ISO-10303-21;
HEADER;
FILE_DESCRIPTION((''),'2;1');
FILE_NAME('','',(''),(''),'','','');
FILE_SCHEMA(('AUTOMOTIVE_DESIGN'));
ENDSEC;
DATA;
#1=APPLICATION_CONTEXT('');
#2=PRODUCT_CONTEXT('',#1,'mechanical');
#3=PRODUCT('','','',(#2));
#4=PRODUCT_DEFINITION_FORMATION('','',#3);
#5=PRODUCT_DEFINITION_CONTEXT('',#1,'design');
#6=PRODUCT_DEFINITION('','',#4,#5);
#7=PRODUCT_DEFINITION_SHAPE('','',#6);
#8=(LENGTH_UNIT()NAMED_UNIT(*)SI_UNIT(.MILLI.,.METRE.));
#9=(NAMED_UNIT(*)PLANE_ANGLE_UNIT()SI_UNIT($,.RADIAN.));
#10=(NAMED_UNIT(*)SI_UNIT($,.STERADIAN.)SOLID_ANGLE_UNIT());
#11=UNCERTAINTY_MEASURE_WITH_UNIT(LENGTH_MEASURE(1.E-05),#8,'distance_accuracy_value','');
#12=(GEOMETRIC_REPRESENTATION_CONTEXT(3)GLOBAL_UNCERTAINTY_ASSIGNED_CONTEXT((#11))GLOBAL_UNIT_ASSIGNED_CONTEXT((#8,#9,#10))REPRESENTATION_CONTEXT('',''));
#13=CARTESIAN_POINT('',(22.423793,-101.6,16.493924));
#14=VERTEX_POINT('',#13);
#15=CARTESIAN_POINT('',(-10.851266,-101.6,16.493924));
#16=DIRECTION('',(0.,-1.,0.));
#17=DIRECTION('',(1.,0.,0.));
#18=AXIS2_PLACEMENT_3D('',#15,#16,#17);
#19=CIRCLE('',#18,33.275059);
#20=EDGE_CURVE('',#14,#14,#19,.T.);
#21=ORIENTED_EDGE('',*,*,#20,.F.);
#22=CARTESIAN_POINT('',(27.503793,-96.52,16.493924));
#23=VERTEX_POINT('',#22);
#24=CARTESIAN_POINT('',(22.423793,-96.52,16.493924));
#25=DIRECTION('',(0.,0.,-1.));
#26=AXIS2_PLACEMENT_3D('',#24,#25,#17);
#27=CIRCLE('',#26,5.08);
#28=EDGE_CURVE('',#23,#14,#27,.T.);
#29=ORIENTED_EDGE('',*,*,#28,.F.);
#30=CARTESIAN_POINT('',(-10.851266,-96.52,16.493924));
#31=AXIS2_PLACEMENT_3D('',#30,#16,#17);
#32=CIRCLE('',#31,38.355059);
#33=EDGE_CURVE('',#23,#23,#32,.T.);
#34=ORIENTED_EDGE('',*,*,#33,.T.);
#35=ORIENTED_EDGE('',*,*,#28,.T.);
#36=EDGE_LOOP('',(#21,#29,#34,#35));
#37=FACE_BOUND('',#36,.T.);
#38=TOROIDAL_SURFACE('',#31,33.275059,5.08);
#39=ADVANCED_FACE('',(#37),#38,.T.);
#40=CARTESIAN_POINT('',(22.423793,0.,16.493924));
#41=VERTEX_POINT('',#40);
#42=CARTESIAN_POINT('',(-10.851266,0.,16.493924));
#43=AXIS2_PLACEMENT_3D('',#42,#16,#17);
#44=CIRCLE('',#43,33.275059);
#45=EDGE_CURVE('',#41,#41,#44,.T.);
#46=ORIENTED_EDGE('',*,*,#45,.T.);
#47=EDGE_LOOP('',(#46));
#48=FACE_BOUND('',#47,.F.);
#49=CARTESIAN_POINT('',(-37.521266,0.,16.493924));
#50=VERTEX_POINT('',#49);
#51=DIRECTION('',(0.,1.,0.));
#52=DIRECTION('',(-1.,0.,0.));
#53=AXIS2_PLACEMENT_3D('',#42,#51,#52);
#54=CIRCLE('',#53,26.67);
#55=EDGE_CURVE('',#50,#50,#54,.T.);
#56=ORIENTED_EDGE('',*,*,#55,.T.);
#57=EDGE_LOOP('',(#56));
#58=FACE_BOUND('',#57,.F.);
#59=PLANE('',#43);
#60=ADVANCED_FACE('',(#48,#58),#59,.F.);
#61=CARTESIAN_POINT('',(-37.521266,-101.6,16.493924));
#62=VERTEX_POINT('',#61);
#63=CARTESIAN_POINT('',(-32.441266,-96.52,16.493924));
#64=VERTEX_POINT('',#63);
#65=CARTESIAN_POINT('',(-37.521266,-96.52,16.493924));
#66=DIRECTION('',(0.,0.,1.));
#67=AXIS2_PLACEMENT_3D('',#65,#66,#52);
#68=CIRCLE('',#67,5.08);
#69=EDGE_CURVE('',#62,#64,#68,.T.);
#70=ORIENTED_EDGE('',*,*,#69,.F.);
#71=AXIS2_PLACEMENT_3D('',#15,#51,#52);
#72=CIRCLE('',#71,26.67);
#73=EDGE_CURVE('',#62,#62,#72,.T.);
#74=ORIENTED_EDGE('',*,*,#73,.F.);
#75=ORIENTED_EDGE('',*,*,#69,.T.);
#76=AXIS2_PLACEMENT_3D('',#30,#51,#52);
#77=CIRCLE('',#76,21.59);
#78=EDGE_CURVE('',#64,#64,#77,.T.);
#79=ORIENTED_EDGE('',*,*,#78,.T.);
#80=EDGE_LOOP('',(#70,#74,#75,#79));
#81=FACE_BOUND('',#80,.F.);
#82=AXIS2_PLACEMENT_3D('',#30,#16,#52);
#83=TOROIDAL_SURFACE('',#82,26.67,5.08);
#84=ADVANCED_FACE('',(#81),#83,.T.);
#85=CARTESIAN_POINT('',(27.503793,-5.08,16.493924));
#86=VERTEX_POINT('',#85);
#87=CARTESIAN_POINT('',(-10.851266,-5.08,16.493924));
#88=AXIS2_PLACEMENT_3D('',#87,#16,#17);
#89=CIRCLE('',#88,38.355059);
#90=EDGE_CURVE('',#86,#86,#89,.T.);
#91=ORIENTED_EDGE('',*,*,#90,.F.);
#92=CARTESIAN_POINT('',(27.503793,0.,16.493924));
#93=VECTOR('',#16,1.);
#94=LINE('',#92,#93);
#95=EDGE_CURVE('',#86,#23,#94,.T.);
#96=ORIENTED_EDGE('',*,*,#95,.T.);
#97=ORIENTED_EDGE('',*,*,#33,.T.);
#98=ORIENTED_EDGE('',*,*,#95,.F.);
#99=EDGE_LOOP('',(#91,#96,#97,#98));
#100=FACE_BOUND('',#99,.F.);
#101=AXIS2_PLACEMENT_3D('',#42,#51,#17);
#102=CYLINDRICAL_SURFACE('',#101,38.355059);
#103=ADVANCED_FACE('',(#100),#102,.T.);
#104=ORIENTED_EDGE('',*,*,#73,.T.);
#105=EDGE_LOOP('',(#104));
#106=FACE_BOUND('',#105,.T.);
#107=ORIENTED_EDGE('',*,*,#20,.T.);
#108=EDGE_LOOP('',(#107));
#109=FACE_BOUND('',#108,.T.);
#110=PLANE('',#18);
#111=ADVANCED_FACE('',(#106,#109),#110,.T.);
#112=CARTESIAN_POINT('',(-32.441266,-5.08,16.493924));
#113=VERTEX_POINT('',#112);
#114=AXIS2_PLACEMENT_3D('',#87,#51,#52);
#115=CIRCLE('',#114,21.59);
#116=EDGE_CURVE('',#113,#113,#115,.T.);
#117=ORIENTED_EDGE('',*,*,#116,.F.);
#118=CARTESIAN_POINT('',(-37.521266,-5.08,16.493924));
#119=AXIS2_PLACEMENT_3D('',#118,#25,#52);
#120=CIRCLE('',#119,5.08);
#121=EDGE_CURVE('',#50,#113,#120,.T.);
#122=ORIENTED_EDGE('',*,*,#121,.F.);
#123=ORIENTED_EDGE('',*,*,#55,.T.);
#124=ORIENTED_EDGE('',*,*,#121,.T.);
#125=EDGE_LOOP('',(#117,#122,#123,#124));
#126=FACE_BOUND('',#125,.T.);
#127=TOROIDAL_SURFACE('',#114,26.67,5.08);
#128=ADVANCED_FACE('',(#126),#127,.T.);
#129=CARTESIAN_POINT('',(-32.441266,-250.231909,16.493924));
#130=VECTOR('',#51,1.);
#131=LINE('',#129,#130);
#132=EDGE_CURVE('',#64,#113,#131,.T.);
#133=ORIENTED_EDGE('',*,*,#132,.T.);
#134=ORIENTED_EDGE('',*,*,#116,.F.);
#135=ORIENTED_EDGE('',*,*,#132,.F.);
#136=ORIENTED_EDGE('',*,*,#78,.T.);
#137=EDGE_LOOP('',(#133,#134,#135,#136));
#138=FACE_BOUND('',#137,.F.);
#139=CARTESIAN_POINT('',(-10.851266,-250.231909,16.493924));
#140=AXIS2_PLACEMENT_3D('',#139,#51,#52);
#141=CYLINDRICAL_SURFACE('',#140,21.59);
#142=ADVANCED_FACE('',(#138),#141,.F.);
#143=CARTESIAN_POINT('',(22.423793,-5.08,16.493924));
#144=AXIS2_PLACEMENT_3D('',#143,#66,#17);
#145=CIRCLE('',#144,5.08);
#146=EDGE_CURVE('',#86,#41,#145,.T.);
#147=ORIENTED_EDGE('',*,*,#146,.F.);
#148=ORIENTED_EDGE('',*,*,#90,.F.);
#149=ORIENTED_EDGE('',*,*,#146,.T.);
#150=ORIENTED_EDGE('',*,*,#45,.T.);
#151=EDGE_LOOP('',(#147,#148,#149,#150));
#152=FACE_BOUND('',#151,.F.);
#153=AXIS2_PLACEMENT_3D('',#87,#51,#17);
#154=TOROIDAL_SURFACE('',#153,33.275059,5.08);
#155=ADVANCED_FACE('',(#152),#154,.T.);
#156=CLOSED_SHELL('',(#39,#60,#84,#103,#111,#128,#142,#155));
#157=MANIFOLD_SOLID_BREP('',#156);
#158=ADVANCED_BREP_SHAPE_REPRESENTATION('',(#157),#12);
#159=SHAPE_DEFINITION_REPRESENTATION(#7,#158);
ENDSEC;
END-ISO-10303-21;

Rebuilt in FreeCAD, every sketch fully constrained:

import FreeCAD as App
import Part
import Sketcher

V = App.Vector
Q = App.Units.Quantity


def edges_at(feature, points):
    """Names of the edges that pass closest to the given points."""
    edges = feature.Shape.Edges
    near = lambda p: min(range(len(edges)), key=lambda i: edges[i].distToShape(Part.Vertex(*p))[0])
    return sorted({f"Edge{near(p) + 1}" for p in points})

doc = App.newDocument("Part")
body = doc.addObject("PartDesign::Body", "Body")

# Sketch on XZ plane
sketch1 = body.newObject("Sketcher::SketchObject", "Sketch")
sketch1.AttachmentSupport = (doc.getObject("XZ_Plane"), [""])
sketch1.MapMode = "FlatFace"
sketch1.addGeometry(Part.Circle(V(-11, 16, 0), V(0, 0, 1), 38), False)
sketch1.addConstraint(Sketcher.Constraint("Diameter", 0, Q("76.710118 mm")))
sketch1.addConstraint(Sketcher.Constraint("DistanceX", 0, 3, -1, 1, Q("10.851266 mm")))
sketch1.addConstraint(Sketcher.Constraint("DistanceY", -1, 1, 0, 3, Q("16.493924 mm")))
pad1 = body.newObject("PartDesign::Pad", "Pad")
pad1.Profile = sketch1
pad1.Length = Q("4 in")

# Sketch on XZ plane
sketch2 = body.newObject("Sketcher::SketchObject", "Sketch001")
sketch2.AttachmentSupport = (doc.getObject("XZ_Plane"), [""])
sketch2.MapMode = "FlatFace"
sketch2.AttachmentOffset = App.Placement(V(0, 0, 4 * 25.4), App.Rotation())
sketch2.addGeometry(Part.Circle(V(-11, 16, 0), V(0, 0, 1), 22), False)
sketch2.addConstraint(Sketcher.Constraint("Diameter", 0, Q("1.7 in")))
sketch2.addConstraint(Sketcher.Constraint("DistanceX", 0, 3, -1, 1, Q("10.851266 mm")))
sketch2.addConstraint(Sketcher.Constraint("DistanceY", -1, 1, 0, 3, Q("16.493924 mm")))
doc.recompute()
hole = body.newObject("PartDesign::Hole", "Hole")
hole.Profile = sketch2
hole.ThreadType = "None"
hole.Diameter = Q("1.7 in")
hole.DepthType = "ThroughAll"
doc.recompute()

fillet = body.newObject("PartDesign::Fillet", "Fillet")
fillet.Base = (hole, edges_at(hole, [(-49.206, 0, 16.494), (10.739, 0, 16.494)]))
fillet.Radius = Q("0.2 in")
doc.recompute()

fillet2 = body.newObject("PartDesign::Fillet", "Fillet001")
fillet2.Base = (fillet, edges_at(fillet, [(-49.206, -101.6, 16.494), (10.739, -101.6, 16.494)]))
fillet2.Radius = Q("0.2 in")

doc.recompute()
